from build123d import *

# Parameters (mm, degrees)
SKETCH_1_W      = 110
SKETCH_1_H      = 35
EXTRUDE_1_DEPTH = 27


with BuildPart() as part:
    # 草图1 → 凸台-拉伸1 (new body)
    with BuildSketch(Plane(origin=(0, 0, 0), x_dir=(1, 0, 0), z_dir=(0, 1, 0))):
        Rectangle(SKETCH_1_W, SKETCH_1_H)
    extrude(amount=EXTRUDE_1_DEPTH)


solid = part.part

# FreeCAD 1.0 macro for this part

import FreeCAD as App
import Part
import Sketcher
from FreeCAD import Vector
Q = App.Units.Quantity

doc = App.newDocument("Part")
body = doc.addObject("PartDesign::Body", "Body")

# Sketch on XZ plane
sketch1 = body.newObject("Sketcher::SketchObject", "Sketch")
sketch1.AttachmentSupport = (doc.getObject("XZ_Plane"), [""])
sketch1.MapMode = "FlatFace"
sketch1.addGeometry(Part.LineSegment(Vector(-55, -17.5, 0), Vector(-55, 17.5, 0)), False)
sketch1.addGeometry(Part.LineSegment(Vector(-55, 17.5, 0), Vector(55, 17.5, 0)), False)
sketch1.addGeometry(Part.LineSegment(Vector(55, 17.5, 0), Vector(55, -17.5, 0)), False)
sketch1.addGeometry(Part.LineSegment(Vector(55, -17.5, 0), Vector(-55, -17.5, 0)), False)
sketch1.addConstraint(Sketcher.Constraint("Coincident", 0, 2, 1, 1))
sketch1.addConstraint(Sketcher.Constraint("Coincident", 1, 2, 2, 1))
sketch1.addConstraint(Sketcher.Constraint("Coincident", 2, 2, 3, 1))
sketch1.addConstraint(Sketcher.Constraint("Coincident", 3, 2, 0, 1))
sketch1.addConstraint(Sketcher.Constraint("Vertical", 0))
sketch1.addConstraint(Sketcher.Constraint("Horizontal", 1))
sketch1.addConstraint(Sketcher.Constraint("Vertical", 2))
sketch1.addConstraint(Sketcher.Constraint("Horizontal", 3))
sketch1.addConstraint(Sketcher.Constraint("Symmetric", 0, 2, 2, 2, -1, 1))
sketch1.addConstraint(Sketcher.Constraint("DistanceX", 1, 1, 1, 2, Q("110 mm")))
sketch1.addConstraint(Sketcher.Constraint("DistanceY", 0, 1, 0, 2, Q("35 mm")))
pad1 = body.newObject("PartDesign::Pad", "Pad")
pad1.Profile = sketch1
pad1.Length = 27
pad1.Reversed = True

doc.recompute()
